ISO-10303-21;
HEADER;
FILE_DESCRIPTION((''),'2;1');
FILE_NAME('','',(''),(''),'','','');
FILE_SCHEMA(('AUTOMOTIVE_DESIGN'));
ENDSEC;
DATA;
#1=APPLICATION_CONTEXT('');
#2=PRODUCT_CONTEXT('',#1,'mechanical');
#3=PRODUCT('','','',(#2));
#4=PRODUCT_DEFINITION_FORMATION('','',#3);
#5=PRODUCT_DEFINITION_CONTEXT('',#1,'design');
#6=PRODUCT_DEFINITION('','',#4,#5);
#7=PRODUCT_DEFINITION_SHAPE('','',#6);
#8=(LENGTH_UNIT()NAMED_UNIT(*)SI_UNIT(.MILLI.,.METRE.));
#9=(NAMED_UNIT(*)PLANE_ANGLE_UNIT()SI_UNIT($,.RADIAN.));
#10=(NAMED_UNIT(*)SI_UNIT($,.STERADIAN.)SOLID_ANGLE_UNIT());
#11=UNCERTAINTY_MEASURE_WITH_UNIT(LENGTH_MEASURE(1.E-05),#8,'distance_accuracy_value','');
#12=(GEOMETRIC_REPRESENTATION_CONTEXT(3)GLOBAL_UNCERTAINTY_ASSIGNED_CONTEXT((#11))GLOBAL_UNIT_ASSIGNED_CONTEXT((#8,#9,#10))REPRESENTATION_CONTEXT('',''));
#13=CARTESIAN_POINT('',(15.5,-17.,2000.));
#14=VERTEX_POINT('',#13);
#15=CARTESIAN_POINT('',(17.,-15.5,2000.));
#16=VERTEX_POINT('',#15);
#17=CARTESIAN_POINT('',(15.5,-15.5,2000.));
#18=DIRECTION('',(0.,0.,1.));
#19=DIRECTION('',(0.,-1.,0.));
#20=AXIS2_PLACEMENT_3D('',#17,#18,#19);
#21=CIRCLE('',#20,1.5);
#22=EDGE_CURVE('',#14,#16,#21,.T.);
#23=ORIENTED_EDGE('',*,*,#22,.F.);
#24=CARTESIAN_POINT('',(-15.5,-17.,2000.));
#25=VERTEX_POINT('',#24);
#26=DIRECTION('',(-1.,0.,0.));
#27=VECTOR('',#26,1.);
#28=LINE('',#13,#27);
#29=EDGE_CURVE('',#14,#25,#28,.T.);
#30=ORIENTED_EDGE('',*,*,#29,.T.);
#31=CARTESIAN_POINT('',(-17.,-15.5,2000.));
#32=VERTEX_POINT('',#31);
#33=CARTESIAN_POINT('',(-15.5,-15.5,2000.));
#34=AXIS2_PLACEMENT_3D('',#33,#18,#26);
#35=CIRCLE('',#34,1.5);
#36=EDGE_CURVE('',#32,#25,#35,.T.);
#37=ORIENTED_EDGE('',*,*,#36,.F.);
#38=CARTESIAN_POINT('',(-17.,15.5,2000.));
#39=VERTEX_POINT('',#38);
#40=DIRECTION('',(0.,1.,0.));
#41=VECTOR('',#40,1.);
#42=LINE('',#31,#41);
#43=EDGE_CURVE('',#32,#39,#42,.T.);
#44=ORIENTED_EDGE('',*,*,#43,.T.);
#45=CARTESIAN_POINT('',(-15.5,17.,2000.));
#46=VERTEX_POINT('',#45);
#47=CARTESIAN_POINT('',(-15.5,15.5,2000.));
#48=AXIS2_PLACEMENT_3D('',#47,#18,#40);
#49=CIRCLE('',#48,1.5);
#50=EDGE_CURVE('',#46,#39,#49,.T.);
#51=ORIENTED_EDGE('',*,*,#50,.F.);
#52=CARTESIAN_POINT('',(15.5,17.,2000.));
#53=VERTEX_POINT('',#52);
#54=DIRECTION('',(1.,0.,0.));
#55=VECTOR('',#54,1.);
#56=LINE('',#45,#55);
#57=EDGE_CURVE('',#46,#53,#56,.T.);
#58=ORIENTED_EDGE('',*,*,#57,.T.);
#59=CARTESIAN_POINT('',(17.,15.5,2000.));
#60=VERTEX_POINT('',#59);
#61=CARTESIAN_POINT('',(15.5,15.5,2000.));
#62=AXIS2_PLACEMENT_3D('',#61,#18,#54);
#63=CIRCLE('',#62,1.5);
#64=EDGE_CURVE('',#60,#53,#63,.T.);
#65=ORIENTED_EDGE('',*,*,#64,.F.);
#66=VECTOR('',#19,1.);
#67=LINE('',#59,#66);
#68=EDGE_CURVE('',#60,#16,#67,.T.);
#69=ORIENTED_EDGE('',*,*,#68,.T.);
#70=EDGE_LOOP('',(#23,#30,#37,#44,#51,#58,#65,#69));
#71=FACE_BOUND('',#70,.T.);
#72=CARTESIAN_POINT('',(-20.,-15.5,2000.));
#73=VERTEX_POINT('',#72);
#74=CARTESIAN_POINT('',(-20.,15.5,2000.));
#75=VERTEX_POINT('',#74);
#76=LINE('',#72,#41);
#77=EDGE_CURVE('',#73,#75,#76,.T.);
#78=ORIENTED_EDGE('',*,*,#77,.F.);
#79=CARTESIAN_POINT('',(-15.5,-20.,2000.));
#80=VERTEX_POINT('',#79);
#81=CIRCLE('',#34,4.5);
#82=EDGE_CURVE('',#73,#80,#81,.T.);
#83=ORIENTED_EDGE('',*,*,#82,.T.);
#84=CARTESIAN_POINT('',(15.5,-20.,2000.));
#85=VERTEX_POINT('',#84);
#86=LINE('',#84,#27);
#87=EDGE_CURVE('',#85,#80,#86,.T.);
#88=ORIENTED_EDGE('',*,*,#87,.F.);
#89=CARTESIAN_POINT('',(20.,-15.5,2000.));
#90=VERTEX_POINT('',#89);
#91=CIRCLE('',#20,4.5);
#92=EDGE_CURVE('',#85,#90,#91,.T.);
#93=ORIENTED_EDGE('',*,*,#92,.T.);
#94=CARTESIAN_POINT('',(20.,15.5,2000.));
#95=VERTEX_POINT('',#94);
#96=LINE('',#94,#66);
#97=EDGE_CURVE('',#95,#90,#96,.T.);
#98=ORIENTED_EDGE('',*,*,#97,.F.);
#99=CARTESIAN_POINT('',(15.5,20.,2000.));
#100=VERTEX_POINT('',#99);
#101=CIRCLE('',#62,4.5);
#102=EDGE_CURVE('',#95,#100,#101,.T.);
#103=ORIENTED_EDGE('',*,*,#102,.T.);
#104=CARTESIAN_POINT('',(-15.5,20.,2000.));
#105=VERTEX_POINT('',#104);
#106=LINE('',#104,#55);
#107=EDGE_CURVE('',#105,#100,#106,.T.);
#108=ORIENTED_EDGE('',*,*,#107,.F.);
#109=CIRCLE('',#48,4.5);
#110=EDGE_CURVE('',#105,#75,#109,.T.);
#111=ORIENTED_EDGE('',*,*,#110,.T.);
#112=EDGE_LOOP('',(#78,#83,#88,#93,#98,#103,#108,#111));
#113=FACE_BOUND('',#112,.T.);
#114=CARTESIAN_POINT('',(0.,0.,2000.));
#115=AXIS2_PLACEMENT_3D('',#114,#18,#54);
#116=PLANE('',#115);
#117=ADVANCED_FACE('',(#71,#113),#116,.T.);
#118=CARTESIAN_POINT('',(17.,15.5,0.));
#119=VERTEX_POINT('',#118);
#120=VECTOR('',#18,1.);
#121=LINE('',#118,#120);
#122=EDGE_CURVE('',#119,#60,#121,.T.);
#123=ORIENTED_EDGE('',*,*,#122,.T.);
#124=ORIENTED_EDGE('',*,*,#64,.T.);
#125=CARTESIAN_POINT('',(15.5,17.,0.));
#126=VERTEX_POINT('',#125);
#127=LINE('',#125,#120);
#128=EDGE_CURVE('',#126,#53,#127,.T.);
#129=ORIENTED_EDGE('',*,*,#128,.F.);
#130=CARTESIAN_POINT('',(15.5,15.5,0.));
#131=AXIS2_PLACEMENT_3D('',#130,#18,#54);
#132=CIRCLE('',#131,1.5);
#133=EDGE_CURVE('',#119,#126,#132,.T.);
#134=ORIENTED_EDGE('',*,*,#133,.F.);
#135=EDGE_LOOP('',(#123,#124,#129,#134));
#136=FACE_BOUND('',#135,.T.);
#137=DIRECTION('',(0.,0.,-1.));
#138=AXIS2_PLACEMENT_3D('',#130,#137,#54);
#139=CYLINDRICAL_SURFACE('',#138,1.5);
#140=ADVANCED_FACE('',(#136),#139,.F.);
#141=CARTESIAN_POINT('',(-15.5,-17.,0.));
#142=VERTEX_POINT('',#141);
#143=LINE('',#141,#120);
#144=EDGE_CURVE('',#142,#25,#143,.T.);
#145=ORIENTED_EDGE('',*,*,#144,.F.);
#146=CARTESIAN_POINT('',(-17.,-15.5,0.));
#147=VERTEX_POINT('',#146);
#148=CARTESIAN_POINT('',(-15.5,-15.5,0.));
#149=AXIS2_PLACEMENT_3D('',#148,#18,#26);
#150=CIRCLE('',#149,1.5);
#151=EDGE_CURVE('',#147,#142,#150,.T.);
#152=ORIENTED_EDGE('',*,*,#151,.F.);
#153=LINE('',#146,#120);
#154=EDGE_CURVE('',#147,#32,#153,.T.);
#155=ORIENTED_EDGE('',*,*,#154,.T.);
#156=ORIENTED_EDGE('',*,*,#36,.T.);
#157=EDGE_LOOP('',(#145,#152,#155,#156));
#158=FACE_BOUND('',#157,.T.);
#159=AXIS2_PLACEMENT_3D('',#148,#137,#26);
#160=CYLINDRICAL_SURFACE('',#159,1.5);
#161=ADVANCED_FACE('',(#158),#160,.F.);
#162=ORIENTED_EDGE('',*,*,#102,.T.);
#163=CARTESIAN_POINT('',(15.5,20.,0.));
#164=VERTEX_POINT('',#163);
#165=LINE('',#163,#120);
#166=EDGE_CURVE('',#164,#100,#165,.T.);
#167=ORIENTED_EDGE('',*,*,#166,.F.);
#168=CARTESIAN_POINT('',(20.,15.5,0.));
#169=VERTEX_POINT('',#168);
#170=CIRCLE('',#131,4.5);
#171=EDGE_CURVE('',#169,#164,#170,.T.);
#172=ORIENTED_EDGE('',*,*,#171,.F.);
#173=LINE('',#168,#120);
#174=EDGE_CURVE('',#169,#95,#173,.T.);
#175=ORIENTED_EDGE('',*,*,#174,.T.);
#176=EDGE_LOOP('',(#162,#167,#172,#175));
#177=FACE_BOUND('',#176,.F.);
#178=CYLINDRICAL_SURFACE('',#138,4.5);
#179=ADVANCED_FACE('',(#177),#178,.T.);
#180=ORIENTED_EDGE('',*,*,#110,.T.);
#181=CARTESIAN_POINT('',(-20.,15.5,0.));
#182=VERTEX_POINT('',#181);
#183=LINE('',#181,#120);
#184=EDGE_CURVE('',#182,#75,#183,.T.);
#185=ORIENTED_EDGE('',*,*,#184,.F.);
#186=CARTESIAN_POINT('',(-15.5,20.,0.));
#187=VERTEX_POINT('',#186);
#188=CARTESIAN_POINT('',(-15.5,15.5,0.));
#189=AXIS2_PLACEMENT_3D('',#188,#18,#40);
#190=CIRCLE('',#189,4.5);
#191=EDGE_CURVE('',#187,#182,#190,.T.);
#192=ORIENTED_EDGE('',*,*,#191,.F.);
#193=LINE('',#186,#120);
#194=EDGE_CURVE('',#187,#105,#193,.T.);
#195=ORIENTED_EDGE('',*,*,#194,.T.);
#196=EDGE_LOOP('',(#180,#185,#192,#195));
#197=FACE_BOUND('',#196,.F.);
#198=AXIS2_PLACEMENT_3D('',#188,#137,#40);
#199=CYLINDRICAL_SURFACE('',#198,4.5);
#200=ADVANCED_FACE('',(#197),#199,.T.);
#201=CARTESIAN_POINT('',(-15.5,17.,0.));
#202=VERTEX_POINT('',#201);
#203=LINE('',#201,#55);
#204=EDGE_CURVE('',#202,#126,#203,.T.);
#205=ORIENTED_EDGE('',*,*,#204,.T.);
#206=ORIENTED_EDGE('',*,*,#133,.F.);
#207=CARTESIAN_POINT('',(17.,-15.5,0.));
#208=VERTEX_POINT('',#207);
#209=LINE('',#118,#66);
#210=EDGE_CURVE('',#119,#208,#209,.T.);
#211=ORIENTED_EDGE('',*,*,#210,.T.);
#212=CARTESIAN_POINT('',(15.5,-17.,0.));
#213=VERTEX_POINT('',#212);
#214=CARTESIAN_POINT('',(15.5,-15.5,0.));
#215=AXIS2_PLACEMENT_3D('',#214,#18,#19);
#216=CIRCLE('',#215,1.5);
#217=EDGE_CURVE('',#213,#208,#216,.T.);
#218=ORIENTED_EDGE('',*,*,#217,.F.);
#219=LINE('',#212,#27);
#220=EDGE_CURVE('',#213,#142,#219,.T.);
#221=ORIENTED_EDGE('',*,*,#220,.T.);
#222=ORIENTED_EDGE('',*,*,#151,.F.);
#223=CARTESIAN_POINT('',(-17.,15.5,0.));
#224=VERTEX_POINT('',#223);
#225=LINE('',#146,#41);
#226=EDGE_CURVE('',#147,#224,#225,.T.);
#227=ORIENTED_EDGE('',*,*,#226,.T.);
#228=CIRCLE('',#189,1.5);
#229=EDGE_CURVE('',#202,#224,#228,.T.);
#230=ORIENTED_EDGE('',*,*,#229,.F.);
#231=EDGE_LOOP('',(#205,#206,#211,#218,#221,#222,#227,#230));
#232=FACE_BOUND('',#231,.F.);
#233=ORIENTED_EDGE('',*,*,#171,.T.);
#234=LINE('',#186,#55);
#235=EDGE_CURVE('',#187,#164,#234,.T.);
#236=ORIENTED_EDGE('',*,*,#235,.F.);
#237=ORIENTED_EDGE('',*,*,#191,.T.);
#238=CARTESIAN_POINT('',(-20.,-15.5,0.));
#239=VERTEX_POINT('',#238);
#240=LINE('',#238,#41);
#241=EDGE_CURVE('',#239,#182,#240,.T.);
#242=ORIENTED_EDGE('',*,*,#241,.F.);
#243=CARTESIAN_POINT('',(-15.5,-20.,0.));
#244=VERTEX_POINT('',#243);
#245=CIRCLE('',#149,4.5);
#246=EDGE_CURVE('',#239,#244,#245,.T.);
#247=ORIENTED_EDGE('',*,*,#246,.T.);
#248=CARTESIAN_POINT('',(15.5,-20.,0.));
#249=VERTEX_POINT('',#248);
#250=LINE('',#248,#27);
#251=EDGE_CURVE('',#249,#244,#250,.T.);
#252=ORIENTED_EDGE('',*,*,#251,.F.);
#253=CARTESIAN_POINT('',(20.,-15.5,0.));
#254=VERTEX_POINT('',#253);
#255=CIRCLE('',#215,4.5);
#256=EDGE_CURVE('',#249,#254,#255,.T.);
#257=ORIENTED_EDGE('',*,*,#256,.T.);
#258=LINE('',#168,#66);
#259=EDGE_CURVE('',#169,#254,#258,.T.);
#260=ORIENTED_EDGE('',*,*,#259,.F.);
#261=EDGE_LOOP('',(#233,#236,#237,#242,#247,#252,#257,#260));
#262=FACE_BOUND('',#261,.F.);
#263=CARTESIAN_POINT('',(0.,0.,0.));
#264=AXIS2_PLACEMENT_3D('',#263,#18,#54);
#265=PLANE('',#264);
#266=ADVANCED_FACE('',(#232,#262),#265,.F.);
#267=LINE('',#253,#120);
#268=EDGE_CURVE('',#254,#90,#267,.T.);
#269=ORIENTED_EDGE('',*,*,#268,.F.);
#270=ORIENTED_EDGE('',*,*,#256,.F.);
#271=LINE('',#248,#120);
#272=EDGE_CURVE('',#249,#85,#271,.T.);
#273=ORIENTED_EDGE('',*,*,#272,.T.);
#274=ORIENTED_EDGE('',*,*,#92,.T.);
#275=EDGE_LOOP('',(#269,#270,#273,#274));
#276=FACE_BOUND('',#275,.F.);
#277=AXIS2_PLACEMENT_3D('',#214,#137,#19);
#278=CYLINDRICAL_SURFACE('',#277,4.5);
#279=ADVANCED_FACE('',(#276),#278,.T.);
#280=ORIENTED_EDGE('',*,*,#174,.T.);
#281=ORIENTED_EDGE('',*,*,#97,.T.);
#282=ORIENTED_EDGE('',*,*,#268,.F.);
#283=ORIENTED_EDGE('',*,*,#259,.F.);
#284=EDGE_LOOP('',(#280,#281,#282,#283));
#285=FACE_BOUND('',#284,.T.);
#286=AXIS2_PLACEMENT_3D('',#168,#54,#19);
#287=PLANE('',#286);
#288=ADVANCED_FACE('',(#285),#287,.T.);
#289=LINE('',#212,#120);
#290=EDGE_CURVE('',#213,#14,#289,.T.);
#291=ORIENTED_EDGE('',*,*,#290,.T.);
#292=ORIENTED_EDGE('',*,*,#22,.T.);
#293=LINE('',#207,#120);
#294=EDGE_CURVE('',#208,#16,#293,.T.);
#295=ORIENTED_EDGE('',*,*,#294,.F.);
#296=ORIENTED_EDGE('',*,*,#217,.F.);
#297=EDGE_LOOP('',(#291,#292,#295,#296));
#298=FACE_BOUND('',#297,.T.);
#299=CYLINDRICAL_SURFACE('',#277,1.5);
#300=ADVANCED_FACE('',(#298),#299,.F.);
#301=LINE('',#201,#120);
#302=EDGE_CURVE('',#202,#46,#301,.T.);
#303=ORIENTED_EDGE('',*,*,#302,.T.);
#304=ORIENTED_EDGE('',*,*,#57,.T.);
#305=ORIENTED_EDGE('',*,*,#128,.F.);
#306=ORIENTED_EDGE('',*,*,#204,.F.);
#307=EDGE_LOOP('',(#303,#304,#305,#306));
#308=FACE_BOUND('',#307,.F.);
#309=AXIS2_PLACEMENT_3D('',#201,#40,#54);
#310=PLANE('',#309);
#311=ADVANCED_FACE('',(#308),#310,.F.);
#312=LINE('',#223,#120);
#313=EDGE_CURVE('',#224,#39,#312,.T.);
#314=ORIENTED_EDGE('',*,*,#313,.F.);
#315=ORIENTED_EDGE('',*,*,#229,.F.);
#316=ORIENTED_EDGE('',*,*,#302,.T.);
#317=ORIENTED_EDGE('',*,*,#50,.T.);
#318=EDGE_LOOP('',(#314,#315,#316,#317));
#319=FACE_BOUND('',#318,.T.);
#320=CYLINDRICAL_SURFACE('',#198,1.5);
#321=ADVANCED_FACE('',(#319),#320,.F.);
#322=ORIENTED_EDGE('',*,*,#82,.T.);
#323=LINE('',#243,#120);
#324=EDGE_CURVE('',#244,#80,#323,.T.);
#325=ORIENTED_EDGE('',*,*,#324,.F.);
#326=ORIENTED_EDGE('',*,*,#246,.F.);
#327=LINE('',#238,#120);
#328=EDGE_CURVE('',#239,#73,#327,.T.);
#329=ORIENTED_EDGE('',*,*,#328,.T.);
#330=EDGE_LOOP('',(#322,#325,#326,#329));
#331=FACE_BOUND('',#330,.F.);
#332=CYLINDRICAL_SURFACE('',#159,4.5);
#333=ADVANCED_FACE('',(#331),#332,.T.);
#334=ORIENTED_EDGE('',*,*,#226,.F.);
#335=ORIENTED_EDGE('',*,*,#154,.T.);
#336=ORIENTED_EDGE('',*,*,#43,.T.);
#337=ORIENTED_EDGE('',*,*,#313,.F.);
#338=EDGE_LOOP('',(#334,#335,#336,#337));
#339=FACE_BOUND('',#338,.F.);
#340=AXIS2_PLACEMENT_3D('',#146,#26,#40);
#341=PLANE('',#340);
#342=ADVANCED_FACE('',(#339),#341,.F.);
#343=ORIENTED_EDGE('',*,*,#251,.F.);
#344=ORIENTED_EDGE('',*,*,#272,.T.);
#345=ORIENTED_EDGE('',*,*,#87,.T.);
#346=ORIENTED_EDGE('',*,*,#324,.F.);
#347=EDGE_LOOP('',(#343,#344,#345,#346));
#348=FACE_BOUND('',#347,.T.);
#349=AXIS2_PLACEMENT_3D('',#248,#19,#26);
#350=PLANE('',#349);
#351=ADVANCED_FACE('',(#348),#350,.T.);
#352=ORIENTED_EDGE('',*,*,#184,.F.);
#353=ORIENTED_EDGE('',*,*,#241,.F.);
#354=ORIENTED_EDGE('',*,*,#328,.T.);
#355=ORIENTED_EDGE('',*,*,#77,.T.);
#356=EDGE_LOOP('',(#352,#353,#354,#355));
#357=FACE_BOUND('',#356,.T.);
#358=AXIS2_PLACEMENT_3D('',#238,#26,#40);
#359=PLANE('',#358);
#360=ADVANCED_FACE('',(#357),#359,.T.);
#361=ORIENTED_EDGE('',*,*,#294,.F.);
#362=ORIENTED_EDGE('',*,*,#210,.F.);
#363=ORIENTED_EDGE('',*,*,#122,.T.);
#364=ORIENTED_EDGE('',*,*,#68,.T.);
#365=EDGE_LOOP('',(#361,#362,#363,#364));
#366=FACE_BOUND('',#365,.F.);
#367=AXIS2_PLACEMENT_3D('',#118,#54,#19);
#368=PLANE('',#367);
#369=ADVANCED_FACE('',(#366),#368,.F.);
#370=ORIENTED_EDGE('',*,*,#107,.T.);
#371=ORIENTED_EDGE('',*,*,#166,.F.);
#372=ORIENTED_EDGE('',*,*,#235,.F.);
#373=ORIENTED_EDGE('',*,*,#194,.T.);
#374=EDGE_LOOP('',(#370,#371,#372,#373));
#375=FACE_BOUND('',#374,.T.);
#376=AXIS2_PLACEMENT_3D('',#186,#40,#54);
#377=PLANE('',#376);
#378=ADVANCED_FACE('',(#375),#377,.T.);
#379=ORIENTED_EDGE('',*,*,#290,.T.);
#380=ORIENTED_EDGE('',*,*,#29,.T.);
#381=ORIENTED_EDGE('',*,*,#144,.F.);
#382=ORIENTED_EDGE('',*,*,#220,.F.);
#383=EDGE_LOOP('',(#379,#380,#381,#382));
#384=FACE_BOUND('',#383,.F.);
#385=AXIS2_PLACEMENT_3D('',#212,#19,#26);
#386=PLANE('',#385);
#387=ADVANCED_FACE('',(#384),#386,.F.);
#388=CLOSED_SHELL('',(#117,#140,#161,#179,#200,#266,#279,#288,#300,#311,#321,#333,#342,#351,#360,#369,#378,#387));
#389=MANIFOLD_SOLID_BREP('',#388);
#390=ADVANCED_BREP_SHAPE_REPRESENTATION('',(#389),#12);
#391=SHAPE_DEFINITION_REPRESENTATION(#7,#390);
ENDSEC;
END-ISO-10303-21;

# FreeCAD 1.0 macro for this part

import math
import FreeCAD as App
import Part
import Sketcher
Q = App.Units.Quantity

doc = App.newDocument("Part")
body = doc.addObject("PartDesign::Body", "Body")

# Sketch on XY plane
sketch1 = doc.addObject("Sketcher::SketchObject", "Sketch")
body.addObject(sketch1)
sketch1.AttachmentSupport = (doc.XY_Plane, [""])
sketch1.MapMode = "FlatFace"
sketch1.addGeometry([
    Part.LineSegment(App.Vector(-20, 15.5, 0), App.Vector(-20, -15.5, 0)),  # 0
    Part.ArcOfCircle(Part.Circle(App.Vector(-15.5, -15.5, 0), App.Vector(0, 0, 1), 4.5), math.radians(180), math.radians(270)),  # 1
    Part.LineSegment(App.Vector(-15.5, -20, 0), App.Vector(15.5, -20, 0)),  # 2
    Part.ArcOfCircle(Part.Circle(App.Vector(15.5, -15.5, 0), App.Vector(0, 0, 1), 4.5), math.radians(-90), math.radians(0)),  # 3
    Part.LineSegment(App.Vector(20, -15.5, 0), App.Vector(20, 15.5, 0)),  # 4
    Part.ArcOfCircle(Part.Circle(App.Vector(15.5, 15.5, 0), App.Vector(0, 0, 1), 4.5), math.radians(0), math.radians(90)),  # 5
    Part.LineSegment(App.Vector(15.5, 20, 0), App.Vector(-15.5, 20, 0)),  # 6
    Part.ArcOfCircle(Part.Circle(App.Vector(-15.5, 15.5, 0), App.Vector(0, 0, 1), 4.5), math.radians(90), math.radians(180)),  # 7
    Part.ArcOfCircle(Part.Circle(App.Vector(-15.5, 15.5, 0), App.Vector(0, 0, 1), 1.5), math.radians(90), math.radians(180)),  # 8
    Part.LineSegment(App.Vector(-15.5, 17, 0), App.Vector(15.5, 17, 0)),  # 9
    Part.ArcOfCircle(Part.Circle(App.Vector(15.5, 15.5, 0), App.Vector(0, 0, 1), 1.5), math.radians(0), math.radians(90)),  # 10
    Part.LineSegment(App.Vector(17, 15.5, 0), App.Vector(17, -15.5, 0)),  # 11
    Part.ArcOfCircle(Part.Circle(App.Vector(15.5, -15.5, 0), App.Vector(0, 0, 1), 1.5), math.radians(-90), math.radians(0)),  # 12
    Part.LineSegment(App.Vector(15.5, -17, 0), App.Vector(-15.5, -17, 0)),  # 13
    Part.ArcOfCircle(Part.Circle(App.Vector(-15.5, -15.5, 0), App.Vector(0, 0, 1), 1.5), math.radians(180), math.radians(270)),  # 14
    Part.LineSegment(App.Vector(-17, -15.5, 0), App.Vector(-17, 15.5, 0)),  # 15
], False)
sketch1.addConstraint([
    Sketcher.Constraint("Tangent", 0, 2, 1, 1),
    Sketcher.Constraint("Tangent", 1, 2, 2, 1),
    Sketcher.Constraint("Tangent", 2, 2, 3, 1),
    Sketcher.Constraint("Tangent", 3, 2, 4, 1),
    Sketcher.Constraint("Tangent", 4, 2, 5, 1),
    Sketcher.Constraint("Tangent", 5, 2, 6, 1),
    Sketcher.Constraint("Tangent", 6, 2, 7, 1),
    Sketcher.Constraint("Tangent", 7, 2, 0, 1),
    Sketcher.Constraint("Tangent", 8, 1, 9, 1),
    Sketcher.Constraint("Tangent", 9, 2, 10, 2),
    Sketcher.Constraint("Tangent", 10, 1, 11, 1),
    Sketcher.Constraint("Tangent", 11, 2, 12, 2),
    Sketcher.Constraint("Tangent", 12, 1, 13, 1),
    Sketcher.Constraint("Tangent", 13, 2, 14, 2),
    Sketcher.Constraint("Tangent", 14, 1, 15, 1),
    Sketcher.Constraint("Tangent", 15, 2, 8, 2),
    Sketcher.Constraint("Vertical", 0),
    Sketcher.Constraint("Horizontal", 2),
    Sketcher.Constraint("Vertical", 4),
    Sketcher.Constraint("Horizontal", 6),
    Sketcher.Constraint("Horizontal", 9),
    Sketcher.Constraint("Vertical", 11),
    Sketcher.Constraint("Horizontal", 13),
    Sketcher.Constraint("Vertical", 15),
    Sketcher.Constraint("Coincident", 8, 3, 7, 3),
    Sketcher.Constraint("Coincident", 10, 3, 5, 3),
    Sketcher.Constraint("Coincident", 12, 3, 3, 3),
    Sketcher.Constraint("Equal", 1, 3),
    Sketcher.Constraint("Equal", 3, 5),
    Sketcher.Constraint("Equal", 5, 7),
    Sketcher.Constraint("Equal", 12, 14),
    Sketcher.Constraint("Symmetric", 1, 3, 5, 3, -1, 1),
    Sketcher.Constraint("Equal", 13, 0),
    Sketcher.Constraint("Radius", 1, Q("4.5 mm")),
    Sketcher.Constraint("Radius", 8, Q("1.5 mm")),
    Sketcher.Constraint("DistanceX", 0, 2, -1, 1, Q("20 mm")),
])
pad1 = doc.addObject("PartDesign::Pad", "Pad")
body.addObject(pad1)
pad1.Profile = sketch1
pad1.Length = 2000

doc.recompute()
